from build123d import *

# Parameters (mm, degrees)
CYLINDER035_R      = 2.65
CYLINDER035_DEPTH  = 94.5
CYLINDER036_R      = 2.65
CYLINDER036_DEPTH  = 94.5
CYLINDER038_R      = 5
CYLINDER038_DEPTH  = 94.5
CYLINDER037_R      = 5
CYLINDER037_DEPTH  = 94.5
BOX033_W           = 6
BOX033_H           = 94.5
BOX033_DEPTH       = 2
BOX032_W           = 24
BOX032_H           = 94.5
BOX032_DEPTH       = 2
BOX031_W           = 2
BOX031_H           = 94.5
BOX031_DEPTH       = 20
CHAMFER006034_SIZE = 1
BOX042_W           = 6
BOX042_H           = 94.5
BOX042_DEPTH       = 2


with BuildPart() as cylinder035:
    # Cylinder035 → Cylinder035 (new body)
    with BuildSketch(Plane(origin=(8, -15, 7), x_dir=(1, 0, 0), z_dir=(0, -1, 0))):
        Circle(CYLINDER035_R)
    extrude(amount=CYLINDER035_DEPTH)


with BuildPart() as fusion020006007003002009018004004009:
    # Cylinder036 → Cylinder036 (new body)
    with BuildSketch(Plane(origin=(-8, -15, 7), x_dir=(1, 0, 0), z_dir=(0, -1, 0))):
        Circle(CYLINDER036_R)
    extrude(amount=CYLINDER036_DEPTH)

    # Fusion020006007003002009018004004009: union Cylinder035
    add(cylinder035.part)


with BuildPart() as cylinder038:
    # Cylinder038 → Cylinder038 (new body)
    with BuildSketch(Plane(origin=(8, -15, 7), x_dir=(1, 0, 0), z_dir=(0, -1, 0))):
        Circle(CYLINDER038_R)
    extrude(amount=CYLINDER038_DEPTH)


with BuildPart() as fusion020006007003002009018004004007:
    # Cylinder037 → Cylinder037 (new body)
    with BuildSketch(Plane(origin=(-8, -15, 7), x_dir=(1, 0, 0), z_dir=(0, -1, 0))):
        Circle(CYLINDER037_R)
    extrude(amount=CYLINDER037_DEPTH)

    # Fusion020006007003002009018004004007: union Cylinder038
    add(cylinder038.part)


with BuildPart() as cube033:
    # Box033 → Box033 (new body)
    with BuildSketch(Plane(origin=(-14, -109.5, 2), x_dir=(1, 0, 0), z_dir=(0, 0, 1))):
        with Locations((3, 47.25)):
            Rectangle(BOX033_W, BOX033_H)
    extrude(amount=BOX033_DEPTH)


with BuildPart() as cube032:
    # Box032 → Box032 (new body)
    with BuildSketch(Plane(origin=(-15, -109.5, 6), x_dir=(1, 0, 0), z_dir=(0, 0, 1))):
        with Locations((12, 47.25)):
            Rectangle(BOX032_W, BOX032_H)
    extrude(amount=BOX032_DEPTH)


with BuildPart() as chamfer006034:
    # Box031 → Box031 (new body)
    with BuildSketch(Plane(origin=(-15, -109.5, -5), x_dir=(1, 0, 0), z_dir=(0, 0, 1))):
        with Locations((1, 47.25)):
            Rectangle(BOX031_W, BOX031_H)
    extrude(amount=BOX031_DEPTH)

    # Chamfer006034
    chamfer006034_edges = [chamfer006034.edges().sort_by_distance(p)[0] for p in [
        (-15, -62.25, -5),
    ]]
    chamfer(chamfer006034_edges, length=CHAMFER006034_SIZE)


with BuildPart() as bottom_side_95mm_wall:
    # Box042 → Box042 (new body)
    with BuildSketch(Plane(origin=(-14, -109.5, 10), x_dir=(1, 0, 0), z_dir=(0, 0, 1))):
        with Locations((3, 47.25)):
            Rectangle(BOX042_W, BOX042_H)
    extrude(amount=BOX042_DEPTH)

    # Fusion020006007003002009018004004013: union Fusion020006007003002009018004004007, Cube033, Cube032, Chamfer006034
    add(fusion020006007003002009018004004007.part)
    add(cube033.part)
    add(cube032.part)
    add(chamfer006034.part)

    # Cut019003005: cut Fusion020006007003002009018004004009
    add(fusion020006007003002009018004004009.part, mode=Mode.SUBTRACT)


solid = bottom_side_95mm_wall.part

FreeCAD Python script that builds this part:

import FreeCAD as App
import Part
import Sketcher
from FreeCAD import Vector
Q = App.Units.Quantity


def edges_at(feature, points):
    """Names of the edges that pass closest to the given points."""
    edges = feature.Shape.Edges
    near = lambda p: min(range(len(edges)), key=lambda i: edges[i].distToShape(Part.Vertex(*p))[0])
    return sorted({f"Edge{near(p) + 1}" for p in points})


def add_polygon(sketch, points):
    """Adds a closed chain of lines whose ends are joined by coincident constraints."""
    first, n = sketch.GeometryCount, len(points)
    for a, b in zip(points, points[1:] + points[:1]):
        sketch.addGeometry(Part.LineSegment(App.Vector(*a, 0), App.Vector(*b, 0)), False)
    for i in range(n):
        sketch.addConstraint(Sketcher.Constraint("Coincident", first + i, 2, first + (i + 1) % n, 1))

doc = App.newDocument("Part")
body = doc.addObject("PartDesign::Body", "Body")

# Sketch on XZ plane
sketch1 = body.newObject("Sketcher::SketchObject", "Sketch")
sketch1.AttachmentSupport = (doc.getObject("XZ_Plane"), [""])
sketch1.MapMode = "FlatFace"
sketch1.AttachmentOffset = App.Placement(Vector(0, 0, 15), App.Rotation())
sketch1.addGeometry(Part.Circle(Vector(8, 7, 0), Vector(0, 0, 1), 2.65), False)
sketch1.addConstraint(Sketcher.Constraint("Diameter", 0, Q("5.3 mm")))
sketch1.addConstraint(Sketcher.Constraint("DistanceX", -1, 1, 0, 3, Q("8 mm")))
sketch1.addConstraint(Sketcher.Constraint("DistanceY", -1, 1, 0, 3, Q("7 mm")))
pad1 = body.newObject("PartDesign::Pad", "Pad")
pad1.Profile = sketch1
pad1.Length = 94.5
body2 = doc.addObject("PartDesign::Body", "Body001")
body2.AllowCompound = True

# Sketch on XZ plane
sketch2 = body2.newObject("Sketcher::SketchObject", "Sketch001")
sketch2.AttachmentSupport = (doc.getObject("XZ_Plane001"), [""])
sketch2.MapMode = "FlatFace"
sketch2.AttachmentOffset = App.Placement(Vector(0, 0, 15), App.Rotation())
sketch2.addGeometry(Part.Circle(Vector(-8, 7, 0), Vector(0, 0, 1), 2.65), False)
sketch2.addConstraint(Sketcher.Constraint("Diameter", 0, Q("5.3 mm")))
sketch2.addConstraint(Sketcher.Constraint("DistanceX", 0, 3, -1, 1, Q("8 mm")))
sketch2.addConstraint(Sketcher.Constraint("DistanceY", -1, 1, 0, 3, Q("7 mm")))
pad2 = body2.newObject("PartDesign::Pad", "Pad001")
pad2.Profile = sketch2
pad2.Length = 94.5
doc.recompute()

boolean = body2.newObject("PartDesign::Boolean", "Boolean")
boolean.Type = "Fuse"
boolean.addObjects([body])
body3 = doc.addObject("PartDesign::Body", "Body002")

# Sketch on XZ plane
sketch3 = body3.newObject("Sketcher::SketchObject", "Sketch002")
sketch3.AttachmentSupport = (doc.getObject("XZ_Plane002"), [""])
sketch3.MapMode = "FlatFace"
sketch3.AttachmentOffset = App.Placement(Vector(0, 0, 15), App.Rotation())
sketch3.addGeometry(Part.Circle(Vector(8, 7, 0), Vector(0, 0, 1), 5), False)
sketch3.addConstraint(Sketcher.Constraint("Diameter", 0, Q("10 mm")))
sketch3.addConstraint(Sketcher.Constraint("DistanceX", -1, 1, 0, 3, Q("8 mm")))
sketch3.addConstraint(Sketcher.Constraint("DistanceY", -1, 1, 0, 3, Q("7 mm")))
pad3 = body3.newObject("PartDesign::Pad", "Pad002")
pad3.Profile = sketch3
pad3.Length = 94.5
body4 = doc.addObject("PartDesign::Body", "Body003")
body4.AllowCompound = True

# Sketch on XZ plane
sketch4 = body4.newObject("Sketcher::SketchObject", "Sketch003")
sketch4.AttachmentSupport = (doc.getObject("XZ_Plane003"), [""])
sketch4.MapMode = "FlatFace"
sketch4.AttachmentOffset = App.Placement(Vector(0, 0, 15), App.Rotation())
sketch4.addGeometry(Part.Circle(Vector(-8, 7, 0), Vector(0, 0, 1), 5), False)
sketch4.addConstraint(Sketcher.Constraint("Diameter", 0, Q("10 mm")))
sketch4.addConstraint(Sketcher.Constraint("DistanceX", 0, 3, -1, 1, Q("8 mm")))
sketch4.addConstraint(Sketcher.Constraint("DistanceY", -1, 1, 0, 3, Q("7 mm")))
pad4 = body4.newObject("PartDesign::Pad", "Pad003")
pad4.Profile = sketch4
pad4.Length = 94.5
doc.recompute()

boolean2 = body4.newObject("PartDesign::Boolean", "Boolean001")
boolean2.Type = "Fuse"
boolean2.addObjects([body3])
body5 = doc.addObject("PartDesign::Body", "Body004")

# Sketch on XY plane
sketch5 = body5.newObject("Sketcher::SketchObject", "Sketch004")
sketch5.AttachmentSupport = (doc.getObject("XY_Plane004"), [""])
sketch5.MapMode = "FlatFace"
sketch5.AttachmentOffset = App.Placement(Vector(0, 0, 2), App.Rotation())
add_polygon(sketch5, [(-14, -15), (-14, -109.5), (-8, -109.5), (-8, -15)])  # lines 0-3
sketch5.addConstraint(Sketcher.Constraint("Vertical", 0))
sketch5.addConstraint(Sketcher.Constraint("Horizontal", 1))
sketch5.addConstraint(Sketcher.Constraint("Vertical", 2))
sketch5.addConstraint(Sketcher.Constraint("Horizontal", 3))
sketch5.addConstraint(Sketcher.Constraint("DistanceX", 1, 1, 1, 2, Q("6 mm")))
sketch5.addConstraint(Sketcher.Constraint("DistanceY", 0, 2, 0, 1, Q("94.5 mm")))
sketch5.addConstraint(Sketcher.Constraint("DistanceX", 0, 2, -1, 1, Q("14 mm")))
sketch5.addConstraint(Sketcher.Constraint("DistanceY", 2, 2, -1, 1, Q("15 mm")))
pad5 = body5.newObject("PartDesign::Pad", "Pad004")
pad5.Profile = sketch5
pad5.Length = 2
body6 = doc.addObject("PartDesign::Body", "Body005")

# Sketch on XY plane
sketch6 = body6.newObject("Sketcher::SketchObject", "Sketch005")
sketch6.AttachmentSupport = (doc.getObject("XY_Plane005"), [""])
sketch6.MapMode = "FlatFace"
sketch6.AttachmentOffset = App.Placement(Vector(0, 0, 6), App.Rotation())
add_polygon(sketch6, [(-15, -15), (-15, -109.5), (9, -109.5), (9, -15)])  # lines 0-3
sketch6.addConstraint(Sketcher.Constraint("Vertical", 0))
sketch6.addConstraint(Sketcher.Constraint("Horizontal", 1))
sketch6.addConstraint(Sketcher.Constraint("Vertical", 2))
sketch6.addConstraint(Sketcher.Constraint("Horizontal", 3))
sketch6.addConstraint(Sketcher.Constraint("DistanceX", 1, 1, 1, 2, Q("24 mm")))
sketch6.addConstraint(Sketcher.Constraint("DistanceY", 0, 2, 0, 1, Q("94.5 mm")))
sketch6.addConstraint(Sketcher.Constraint("DistanceX", 0, 2, -1, 1, Q("15 mm")))
sketch6.addConstraint(Sketcher.Constraint("DistanceY", 2, 2, -1, 1, Q("15 mm")))
pad6 = body6.newObject("PartDesign::Pad", "Pad005")
pad6.Profile = sketch6
pad6.Length = 2
body7 = doc.addObject("PartDesign::Body", "Body006")

# Sketch on XY plane
sketch7 = body7.newObject("Sketcher::SketchObject", "Sketch006")
sketch7.AttachmentSupport = (doc.getObject("XY_Plane006"), [""])
sketch7.MapMode = "FlatFace"
sketch7.AttachmentOffset = App.Placement(Vector(0, 0, -5), App.Rotation())
add_polygon(sketch7, [(-15, -15), (-15, -109.5), (-13, -109.5), (-13, -15)])  # lines 0-3
sketch7.addConstraint(Sketcher.Constraint("Vertical", 0))
sketch7.addConstraint(Sketcher.Constraint("Horizontal", 1))
sketch7.addConstraint(Sketcher.Constraint("Vertical", 2))
sketch7.addConstraint(Sketcher.Constraint("Horizontal", 3))
sketch7.addConstraint(Sketcher.Constraint("DistanceX", 1, 1, 1, 2, Q("2 mm")))
sketch7.addConstraint(Sketcher.Constraint("DistanceY", 0, 2, 0, 1, Q("94.5 mm")))
sketch7.addConstraint(Sketcher.Constraint("DistanceX", 0, 2, -1, 1, Q("15 mm")))
sketch7.addConstraint(Sketcher.Constraint("DistanceY", 2, 2, -1, 1, Q("15 mm")))
pad7 = body7.newObject("PartDesign::Pad", "Pad006")
pad7.Profile = sketch7
pad7.Length = 20
doc.recompute()

chamfer = body7.newObject("PartDesign::Chamfer", "Chamfer")
chamfer.Base = (pad7, edges_at(pad7, [(-15, -62.25, -5)]))
chamfer.Size = 1
body8 = doc.addObject("PartDesign::Body", "Body007")
body8.AllowCompound = True

# Sketch on XY plane
sketch8 = body8.newObject("Sketcher::SketchObject", "Sketch007")
sketch8.AttachmentSupport = (doc.getObject("XY_Plane007"), [""])
sketch8.MapMode = "FlatFace"
sketch8.AttachmentOffset = App.Placement(Vector(0, 0, 10), App.Rotation())
add_polygon(sketch8, [(-14, -15), (-14, -109.5), (-8, -109.5), (-8, -15)])  # lines 0-3
sketch8.addConstraint(Sketcher.Constraint("Vertical", 0))
sketch8.addConstraint(Sketcher.Constraint("Horizontal", 1))
sketch8.addConstraint(Sketcher.Constraint("Vertical", 2))
sketch8.addConstraint(Sketcher.Constraint("Horizontal", 3))
sketch8.addConstraint(Sketcher.Constraint("DistanceX", 1, 1, 1, 2, Q("6 mm")))
sketch8.addConstraint(Sketcher.Constraint("DistanceY", 0, 2, 0, 1, Q("94.5 mm")))
sketch8.addConstraint(Sketcher.Constraint("DistanceX", 0, 2, -1, 1, Q("14 mm")))
sketch8.addConstraint(Sketcher.Constraint("DistanceY", 2, 2, -1, 1, Q("15 mm")))
pad8 = body8.newObject("PartDesign::Pad", "Pad007")
pad8.Profile = sketch8
pad8.Length = 2
doc.recompute()

boolean3 = body8.newObject("PartDesign::Boolean", "Boolean002")
boolean3.Type = "Fuse"
boolean3.addObjects([body4])
doc.recompute()

boolean4 = body8.newObject("PartDesign::Boolean", "Boolean003")
boolean4.Type = "Fuse"
boolean4.addObjects([body5])
doc.recompute()

boolean5 = body8.newObject("PartDesign::Boolean", "Boolean004")
boolean5.Type = "Fuse"
boolean5.addObjects([body6])
doc.recompute()

boolean6 = body8.newObject("PartDesign::Boolean", "Boolean005")
boolean6.Type = "Fuse"
boolean6.addObjects([body7])
doc.recompute()

boolean7 = body8.newObject("PartDesign::Boolean", "Boolean006")
boolean7.Type = "Cut"
boolean7.addObjects([body2])

doc.recompute()
